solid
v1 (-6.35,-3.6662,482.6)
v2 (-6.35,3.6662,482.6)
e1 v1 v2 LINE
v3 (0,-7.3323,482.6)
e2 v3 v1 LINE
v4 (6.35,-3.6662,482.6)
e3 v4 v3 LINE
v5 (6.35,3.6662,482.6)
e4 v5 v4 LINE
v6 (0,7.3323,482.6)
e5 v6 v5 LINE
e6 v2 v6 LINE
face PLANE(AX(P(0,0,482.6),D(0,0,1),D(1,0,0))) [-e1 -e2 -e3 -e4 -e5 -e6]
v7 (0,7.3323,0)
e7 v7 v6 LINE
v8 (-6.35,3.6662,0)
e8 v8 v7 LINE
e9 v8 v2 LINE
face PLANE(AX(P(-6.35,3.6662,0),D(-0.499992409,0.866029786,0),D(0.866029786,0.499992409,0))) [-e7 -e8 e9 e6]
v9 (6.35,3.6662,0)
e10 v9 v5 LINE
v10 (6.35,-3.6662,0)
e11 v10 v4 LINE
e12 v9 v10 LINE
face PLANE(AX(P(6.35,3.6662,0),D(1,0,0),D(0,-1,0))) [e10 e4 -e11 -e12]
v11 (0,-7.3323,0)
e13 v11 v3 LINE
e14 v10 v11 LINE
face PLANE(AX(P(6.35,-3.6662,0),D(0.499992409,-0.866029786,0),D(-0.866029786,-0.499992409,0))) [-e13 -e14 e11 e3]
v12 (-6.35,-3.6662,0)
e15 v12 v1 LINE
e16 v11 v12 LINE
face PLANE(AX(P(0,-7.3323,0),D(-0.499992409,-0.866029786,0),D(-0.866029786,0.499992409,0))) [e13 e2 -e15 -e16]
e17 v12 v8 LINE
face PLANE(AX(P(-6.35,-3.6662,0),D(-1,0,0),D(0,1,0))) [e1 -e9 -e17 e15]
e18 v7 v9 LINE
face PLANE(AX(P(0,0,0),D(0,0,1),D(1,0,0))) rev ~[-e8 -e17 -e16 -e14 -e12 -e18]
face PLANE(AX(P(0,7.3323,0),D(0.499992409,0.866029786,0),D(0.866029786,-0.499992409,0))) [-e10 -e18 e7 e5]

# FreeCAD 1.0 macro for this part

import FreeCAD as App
import Part
import Sketcher
from FreeCAD import Vector
Q = App.Units.Quantity


def add_polygon(sketch, points):
    """Adds a closed chain of lines whose ends are joined by coincident constraints."""
    first, n = sketch.GeometryCount, len(points)
    for a, b in zip(points, points[1:] + points[:1]):
        sketch.addGeometry(Part.LineSegment(App.Vector(*a, 0), App.Vector(*b, 0)), False)
    for i in range(n):
        sketch.addConstraint(Sketcher.Constraint("Coincident", first + i, 2, first + (i + 1) % n, 1))

doc = App.newDocument("Part")
body = doc.addObject("PartDesign::Body", "Body")

sketch1 = doc.addObject("Sketcher::SketchObject", "Sketch")
body.addObject(sketch1)
sketch1.AttachmentSupport = (doc.XY_Plane, [""])
sketch1.MapMode = "FlatFace"
add_polygon(sketch1, [(0, -7), (6, -4), (6, 4), (0, 7), (-6, 4), (-6, -4)])
sketch1.addConstraint([
    Sketcher.Constraint("Vertical", 1),
    Sketcher.Constraint("Vertical", 4),
    Sketcher.Constraint("Symmetric", 0, 2, 3, 2, -1, 1),
    Sketcher.Constraint("Symmetric", 2, 2, 5, 2, -1, 1),
    Sketcher.Constraint("PointOnObject", 2, 2, -2),
    Sketcher.Constraint("Parallel", 2, 5),
    Sketcher.Constraint("Horizontal", 1, 2, 3, 2),
    Sketcher.Constraint("DistanceX", 3, 2, 1, 2, Q("0.5 in")),
    Sketcher.Constraint("Angle", 0, Q("29.9995 deg")),
    Sketcher.Constraint("DistanceY", 0, 2, 2, 2, Q("0.433 in")),
])
pad1 = doc.addObject("PartDesign::Pad", "Pad")
body.addObject(pad1)
pad1.Profile = sketch1
pad1.Length = Q("19 in")

doc.recompute()
